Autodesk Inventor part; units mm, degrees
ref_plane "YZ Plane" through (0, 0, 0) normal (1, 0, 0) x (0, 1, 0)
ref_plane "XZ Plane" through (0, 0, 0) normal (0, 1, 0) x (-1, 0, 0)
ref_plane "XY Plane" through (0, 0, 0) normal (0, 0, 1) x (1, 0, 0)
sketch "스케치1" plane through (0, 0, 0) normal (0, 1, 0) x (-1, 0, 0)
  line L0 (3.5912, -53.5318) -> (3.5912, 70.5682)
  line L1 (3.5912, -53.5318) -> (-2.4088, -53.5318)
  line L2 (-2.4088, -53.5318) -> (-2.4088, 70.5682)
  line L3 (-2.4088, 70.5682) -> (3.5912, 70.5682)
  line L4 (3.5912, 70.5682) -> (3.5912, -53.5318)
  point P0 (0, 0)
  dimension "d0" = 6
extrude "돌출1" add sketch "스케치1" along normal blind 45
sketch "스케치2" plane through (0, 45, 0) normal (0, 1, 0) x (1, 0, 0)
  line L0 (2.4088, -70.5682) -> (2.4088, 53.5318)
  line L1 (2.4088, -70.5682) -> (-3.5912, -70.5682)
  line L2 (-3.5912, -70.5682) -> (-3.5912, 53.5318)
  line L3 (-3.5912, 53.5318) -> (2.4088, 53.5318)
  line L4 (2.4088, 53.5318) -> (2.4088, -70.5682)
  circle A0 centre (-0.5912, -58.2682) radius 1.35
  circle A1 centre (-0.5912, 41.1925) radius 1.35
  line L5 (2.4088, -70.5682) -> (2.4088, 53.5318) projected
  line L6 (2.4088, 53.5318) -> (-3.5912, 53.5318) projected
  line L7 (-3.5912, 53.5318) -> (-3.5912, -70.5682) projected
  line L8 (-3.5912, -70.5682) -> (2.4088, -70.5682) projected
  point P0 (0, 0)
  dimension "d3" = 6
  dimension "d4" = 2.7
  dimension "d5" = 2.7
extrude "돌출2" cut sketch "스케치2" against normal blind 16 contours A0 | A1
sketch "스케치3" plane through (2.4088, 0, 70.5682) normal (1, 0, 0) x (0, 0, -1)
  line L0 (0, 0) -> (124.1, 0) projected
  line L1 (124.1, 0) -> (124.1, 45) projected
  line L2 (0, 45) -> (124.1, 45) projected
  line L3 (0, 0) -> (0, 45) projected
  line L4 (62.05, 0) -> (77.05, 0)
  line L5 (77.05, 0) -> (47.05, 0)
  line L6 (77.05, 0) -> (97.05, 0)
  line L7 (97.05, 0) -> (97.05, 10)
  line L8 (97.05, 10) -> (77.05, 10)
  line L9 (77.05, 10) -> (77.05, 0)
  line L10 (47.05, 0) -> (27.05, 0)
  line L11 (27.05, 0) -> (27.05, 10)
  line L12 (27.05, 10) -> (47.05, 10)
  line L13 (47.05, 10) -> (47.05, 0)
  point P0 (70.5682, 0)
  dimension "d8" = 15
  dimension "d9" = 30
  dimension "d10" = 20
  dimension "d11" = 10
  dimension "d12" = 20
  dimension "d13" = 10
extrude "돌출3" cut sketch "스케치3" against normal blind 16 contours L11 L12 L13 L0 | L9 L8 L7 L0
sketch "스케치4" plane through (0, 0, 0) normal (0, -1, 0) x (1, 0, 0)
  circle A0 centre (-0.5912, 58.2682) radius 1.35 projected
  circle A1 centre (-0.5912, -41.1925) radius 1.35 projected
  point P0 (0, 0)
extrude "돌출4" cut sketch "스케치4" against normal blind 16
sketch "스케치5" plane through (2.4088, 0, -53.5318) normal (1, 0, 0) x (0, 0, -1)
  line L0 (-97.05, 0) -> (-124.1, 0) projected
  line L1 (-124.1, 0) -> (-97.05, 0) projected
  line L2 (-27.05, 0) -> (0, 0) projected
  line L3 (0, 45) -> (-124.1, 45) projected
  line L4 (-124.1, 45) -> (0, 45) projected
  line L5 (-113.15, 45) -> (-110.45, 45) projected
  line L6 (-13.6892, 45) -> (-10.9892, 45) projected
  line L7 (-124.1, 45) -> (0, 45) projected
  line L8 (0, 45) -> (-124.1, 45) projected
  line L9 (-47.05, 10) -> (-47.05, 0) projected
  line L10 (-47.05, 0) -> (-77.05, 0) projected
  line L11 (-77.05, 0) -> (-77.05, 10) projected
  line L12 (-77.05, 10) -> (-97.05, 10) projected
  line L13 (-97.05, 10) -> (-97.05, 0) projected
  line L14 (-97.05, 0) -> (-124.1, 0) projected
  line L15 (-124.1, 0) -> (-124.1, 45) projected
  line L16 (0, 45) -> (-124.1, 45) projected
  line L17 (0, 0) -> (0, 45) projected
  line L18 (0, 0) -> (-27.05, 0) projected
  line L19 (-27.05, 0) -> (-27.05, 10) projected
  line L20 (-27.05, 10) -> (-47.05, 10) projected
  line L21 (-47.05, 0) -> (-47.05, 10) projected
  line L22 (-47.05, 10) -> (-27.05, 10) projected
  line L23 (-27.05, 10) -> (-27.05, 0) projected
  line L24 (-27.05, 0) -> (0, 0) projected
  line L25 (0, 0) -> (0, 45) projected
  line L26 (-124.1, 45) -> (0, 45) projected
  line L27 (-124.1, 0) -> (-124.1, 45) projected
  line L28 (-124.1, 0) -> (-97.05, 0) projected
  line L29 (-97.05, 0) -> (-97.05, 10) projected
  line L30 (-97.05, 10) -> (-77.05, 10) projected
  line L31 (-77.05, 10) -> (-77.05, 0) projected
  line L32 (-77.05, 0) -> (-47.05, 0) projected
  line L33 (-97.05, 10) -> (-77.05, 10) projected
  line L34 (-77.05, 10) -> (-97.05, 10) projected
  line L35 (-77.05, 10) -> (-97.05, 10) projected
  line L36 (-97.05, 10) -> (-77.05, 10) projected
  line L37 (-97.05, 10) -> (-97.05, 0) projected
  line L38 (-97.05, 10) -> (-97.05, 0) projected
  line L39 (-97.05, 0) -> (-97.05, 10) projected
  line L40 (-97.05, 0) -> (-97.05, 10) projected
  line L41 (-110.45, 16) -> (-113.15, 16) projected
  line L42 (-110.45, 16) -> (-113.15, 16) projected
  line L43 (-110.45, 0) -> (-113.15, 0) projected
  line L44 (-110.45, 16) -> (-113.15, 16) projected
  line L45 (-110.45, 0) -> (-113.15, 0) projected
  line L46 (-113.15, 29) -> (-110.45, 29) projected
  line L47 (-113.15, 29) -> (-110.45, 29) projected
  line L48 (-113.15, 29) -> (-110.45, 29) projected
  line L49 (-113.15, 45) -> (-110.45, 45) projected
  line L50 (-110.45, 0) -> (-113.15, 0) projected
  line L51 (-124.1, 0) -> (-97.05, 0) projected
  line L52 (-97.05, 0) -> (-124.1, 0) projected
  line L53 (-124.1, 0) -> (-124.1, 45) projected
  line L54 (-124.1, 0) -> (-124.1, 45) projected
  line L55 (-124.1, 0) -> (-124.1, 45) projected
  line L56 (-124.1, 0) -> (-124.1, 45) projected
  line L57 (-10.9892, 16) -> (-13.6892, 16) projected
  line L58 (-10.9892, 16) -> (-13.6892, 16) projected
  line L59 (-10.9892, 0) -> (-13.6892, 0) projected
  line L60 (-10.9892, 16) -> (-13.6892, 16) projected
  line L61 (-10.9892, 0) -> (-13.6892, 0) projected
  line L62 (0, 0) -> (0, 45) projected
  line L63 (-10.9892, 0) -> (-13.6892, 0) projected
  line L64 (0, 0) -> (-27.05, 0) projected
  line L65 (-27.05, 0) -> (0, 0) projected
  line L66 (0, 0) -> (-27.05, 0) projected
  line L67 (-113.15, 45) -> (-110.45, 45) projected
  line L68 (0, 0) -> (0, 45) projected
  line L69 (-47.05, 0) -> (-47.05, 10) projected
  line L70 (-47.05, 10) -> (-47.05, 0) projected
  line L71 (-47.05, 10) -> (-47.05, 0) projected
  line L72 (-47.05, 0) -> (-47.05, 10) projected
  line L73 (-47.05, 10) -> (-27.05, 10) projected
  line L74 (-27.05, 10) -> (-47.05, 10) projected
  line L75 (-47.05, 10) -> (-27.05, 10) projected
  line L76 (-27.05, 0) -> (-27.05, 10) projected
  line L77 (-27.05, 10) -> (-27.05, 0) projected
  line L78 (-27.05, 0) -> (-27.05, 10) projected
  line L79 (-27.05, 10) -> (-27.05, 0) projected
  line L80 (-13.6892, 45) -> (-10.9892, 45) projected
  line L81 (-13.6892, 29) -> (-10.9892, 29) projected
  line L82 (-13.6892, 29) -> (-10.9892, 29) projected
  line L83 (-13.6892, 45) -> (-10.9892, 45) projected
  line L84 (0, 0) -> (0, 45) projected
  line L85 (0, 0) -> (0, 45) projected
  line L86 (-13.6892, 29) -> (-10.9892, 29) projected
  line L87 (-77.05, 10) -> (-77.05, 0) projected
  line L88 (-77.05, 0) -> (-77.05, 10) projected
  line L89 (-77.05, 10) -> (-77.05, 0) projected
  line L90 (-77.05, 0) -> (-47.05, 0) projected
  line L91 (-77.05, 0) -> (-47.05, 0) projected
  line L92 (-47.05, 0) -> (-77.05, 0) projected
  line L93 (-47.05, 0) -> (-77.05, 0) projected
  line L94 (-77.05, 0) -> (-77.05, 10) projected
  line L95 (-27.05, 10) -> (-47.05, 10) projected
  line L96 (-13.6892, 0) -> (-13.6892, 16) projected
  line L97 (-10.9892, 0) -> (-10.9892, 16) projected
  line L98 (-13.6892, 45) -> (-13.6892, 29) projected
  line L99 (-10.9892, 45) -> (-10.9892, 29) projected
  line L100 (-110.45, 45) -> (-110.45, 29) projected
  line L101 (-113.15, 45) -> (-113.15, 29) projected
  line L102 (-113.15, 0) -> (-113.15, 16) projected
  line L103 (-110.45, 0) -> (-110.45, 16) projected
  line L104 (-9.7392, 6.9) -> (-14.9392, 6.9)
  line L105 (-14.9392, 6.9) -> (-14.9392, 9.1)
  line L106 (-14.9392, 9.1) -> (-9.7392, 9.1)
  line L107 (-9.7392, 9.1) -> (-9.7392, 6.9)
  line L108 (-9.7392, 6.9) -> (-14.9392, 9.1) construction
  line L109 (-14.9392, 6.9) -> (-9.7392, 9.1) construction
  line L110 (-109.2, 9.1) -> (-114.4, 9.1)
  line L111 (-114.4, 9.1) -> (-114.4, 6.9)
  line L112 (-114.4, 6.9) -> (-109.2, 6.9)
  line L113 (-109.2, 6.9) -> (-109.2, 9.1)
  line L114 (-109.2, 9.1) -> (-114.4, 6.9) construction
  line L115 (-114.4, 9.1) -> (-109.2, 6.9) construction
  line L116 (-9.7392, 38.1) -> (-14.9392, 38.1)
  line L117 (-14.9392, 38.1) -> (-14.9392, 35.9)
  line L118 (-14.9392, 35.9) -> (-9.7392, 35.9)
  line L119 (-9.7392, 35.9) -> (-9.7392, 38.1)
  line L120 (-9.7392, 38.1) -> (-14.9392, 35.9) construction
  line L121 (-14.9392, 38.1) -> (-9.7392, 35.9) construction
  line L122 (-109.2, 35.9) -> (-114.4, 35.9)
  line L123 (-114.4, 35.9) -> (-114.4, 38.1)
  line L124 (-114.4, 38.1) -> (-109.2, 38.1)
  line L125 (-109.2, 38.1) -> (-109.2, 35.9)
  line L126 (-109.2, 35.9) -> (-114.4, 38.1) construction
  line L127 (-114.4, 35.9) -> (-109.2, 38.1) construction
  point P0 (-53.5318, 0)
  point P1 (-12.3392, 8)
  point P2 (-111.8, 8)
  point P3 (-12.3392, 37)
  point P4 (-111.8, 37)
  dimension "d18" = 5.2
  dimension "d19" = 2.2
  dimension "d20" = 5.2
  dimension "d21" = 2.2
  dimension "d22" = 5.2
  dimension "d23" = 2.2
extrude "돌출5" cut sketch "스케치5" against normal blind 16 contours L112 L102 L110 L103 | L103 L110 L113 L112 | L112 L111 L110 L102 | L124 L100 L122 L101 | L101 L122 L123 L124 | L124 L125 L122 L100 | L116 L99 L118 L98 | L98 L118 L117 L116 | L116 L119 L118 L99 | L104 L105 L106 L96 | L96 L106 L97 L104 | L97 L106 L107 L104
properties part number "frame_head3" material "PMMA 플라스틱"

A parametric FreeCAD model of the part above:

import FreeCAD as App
import Part
import Sketcher

doc = App.newDocument("Part")
params = doc.addObject("Spreadsheet::Sheet", "Params")
for row, (alias, value) in enumerate([
    ("sketch1_width", "6 mm"),
    ("sketch1_height", "124.1 mm"),
    ("pad1_length", "45 mm"),
    ("sketch2_diameter", "2.7 mm"),
    ("pocket1_length", "16 mm"),
    ("sketch3_width", "10 mm"),
    ("sketch3_height", "20 mm"),
    ("pocket2_length", "16 mm"),
    ("sketch4_diameter", "2.7 mm"),
    ("pocket3_length", "16 mm"),
    ("sketch5_width", "2.2 mm"),
    ("sketch5_height", "5.2 mm"),
    ("pocket4_length", "16 mm"),
], start=1):
    params.set(f"A{row}", alias)
    params.set(f"B{row}", "=" + value)
    params.setAlias(f"B{row}", alias)

body = doc.addObject("PartDesign::Body", "Body")

sketch1 = body.newObject("Sketcher::SketchObject", "Sketch")
sketch1.AttachmentSupport = (doc.getObject("XZ_Plane"), [""])
sketch1.MapMode = "FlatFace"
sketch1.addGeometry([
    Part.LineSegment(App.Vector(2.4088, -53.5318, 0), App.Vector(-3.5912, -53.5318, 0)),
    Part.LineSegment(App.Vector(-3.5912, -53.5318, 0), App.Vector(-3.5912, 70.5682, 0)),
    Part.LineSegment(App.Vector(-3.5912, 70.5682, 0), App.Vector(2.4088, 70.5682, 0)),
    Part.LineSegment(App.Vector(2.4088, 70.5682, 0), App.Vector(2.4088, -53.5318, 0)),
], False)
sketch1.addConstraint([
    Sketcher.Constraint("Coincident", 0, 2, 1, 1),
    Sketcher.Constraint("Coincident", 1, 2, 2, 1),
    Sketcher.Constraint("Coincident", 2, 2, 3, 1),
    Sketcher.Constraint("Coincident", 3, 2, 0, 1),
    Sketcher.Constraint("Horizontal", 0),
    Sketcher.Constraint("Vertical", 1),
    Sketcher.Constraint("Horizontal", 2),
    Sketcher.Constraint("Vertical", 3),
    Sketcher.Constraint("DistanceX", 0, 2, 0, 1, 6.0),
    Sketcher.Constraint("DistanceY", 1, 1, 1, 2, 124.1),
    Sketcher.Constraint("DistanceX", 0, 2, -1, 1, 3.5912),
    Sketcher.Constraint("DistanceY", 0, 2, -1, 1, 53.5318),
])
sketch1.setExpression("Constraints[8]", "Params.sketch1_width")
sketch1.setExpression("Constraints[9]", "Params.sketch1_height")
pad1 = body.newObject("PartDesign::Pad", "Pad")
pad1.Profile = sketch1
pad1.setExpression("Length", "Params.pad1_length")
pad1.Reversed = True

sketch2 = body.newObject("Sketcher::SketchObject", "Sketch001")
sketch2.AttachmentSupport = (doc.getObject("XZ_Plane"), [""])
sketch2.MapMode = "FlatFace"
sketch2.AttachmentOffset = App.Placement(App.Vector(0, 0, -45), App.Rotation())
sketch2.addGeometry([
    Part.Circle(App.Vector(-0.5912, 58.2682, 0), App.Vector(0, 0, 1), 1.35),
    Part.Circle(App.Vector(-0.5912, -41.1925, 0), App.Vector(0, 0, 1), 1.35),
], False)
sketch2.addConstraint([
    Sketcher.Constraint("Equal", 0, 1),
    Sketcher.Constraint("Vertical", 0, 3, 1, 3),
    Sketcher.Constraint("Diameter", 0, 2.7),
    Sketcher.Constraint("DistanceX", 0, 3, -1, 1, 0.5912),
    Sketcher.Constraint("DistanceY", -1, 1, 0, 3, 58.2682),
    Sketcher.Constraint("DistanceY", 1, 3, -1, 1, 41.1925),
])
sketch2.setExpression("Constraints[2]", "Params.sketch2_diameter")
pocket1 = body.newObject("PartDesign::Pocket", "Pocket")
pocket1.Profile = sketch2
pocket1.setExpression("Length", "Params.pocket1_length")
pocket1.Reversed = True

sketch3 = body.newObject("Sketcher::SketchObject", "Sketch002")
sketch3.AttachmentSupport = (doc.getObject("YZ_Plane"), [""])
sketch3.MapMode = "FlatFace"
sketch3.AttachmentOffset = App.Placement(App.Vector(0, 0, 2.4088), App.Rotation())
sketch3.addGeometry([
    Part.LineSegment(App.Vector(10, 43.5182, 0), App.Vector(0, 43.5182, 0)),
    Part.LineSegment(App.Vector(0, 43.5182, 0), App.Vector(0, 23.5182, 0)),
    Part.LineSegment(App.Vector(0, 23.5182, 0), App.Vector(10, 23.5182, 0)),
    Part.LineSegment(App.Vector(10, 23.5182, 0), App.Vector(10, 43.5182, 0)),
    Part.LineSegment(App.Vector(10, -6.4818, 0), App.Vector(0, -6.4818, 0)),
    Part.LineSegment(App.Vector(0, -6.4818, 0), App.Vector(0, -26.4818, 0)),
    Part.LineSegment(App.Vector(0, -26.4818, 0), App.Vector(10, -26.4818, 0)),
    Part.LineSegment(App.Vector(10, -26.4818, 0), App.Vector(10, -6.4818, 0)),
], False)
sketch3.addConstraint([
    Sketcher.Constraint("Coincident", 0, 2, 1, 1),
    Sketcher.Constraint("Coincident", 1, 2, 2, 1),
    Sketcher.Constraint("Coincident", 2, 2, 3, 1),
    Sketcher.Constraint("Coincident", 3, 2, 0, 1),
    Sketcher.Constraint("Coincident", 4, 2, 5, 1),
    Sketcher.Constraint("Coincident", 5, 2, 6, 1),
    Sketcher.Constraint("Coincident", 6, 2, 7, 1),
    Sketcher.Constraint("Coincident", 7, 2, 4, 1),
    Sketcher.Constraint("Horizontal", 0),
    Sketcher.Constraint("Vertical", 1),
    Sketcher.Constraint("Horizontal", 2),
    Sketcher.Constraint("Vertical", 3),
    Sketcher.Constraint("Horizontal", 4),
    Sketcher.Constraint("Vertical", 5),
    Sketcher.Constraint("Horizontal", 6),
    Sketcher.Constraint("Vertical", 7),
    Sketcher.Constraint("PointOnObject", 0, 2, -2),
    Sketcher.Constraint("PointOnObject", 4, 2, -2),
    Sketcher.Constraint("Vertical", 3, 2, 6, 2),
    Sketcher.Constraint("Equal", 3, 5),
    Sketcher.Constraint("DistanceX", 0, 2, 0, 1, 10.0),
    Sketcher.Constraint("DistanceY", 1, 2, 1, 1, 20.0),
    Sketcher.Constraint("DistanceY", 4, 2, 1, 2, 30.0),
    Sketcher.Constraint("DistanceY", -1, 1, 0, 2, 43.5182),
])
sketch3.setExpression("Constraints[20]", "Params.sketch3_width")
sketch3.setExpression("Constraints[21]", "Params.sketch3_height")
pocket2 = body.newObject("PartDesign::Pocket", "Pocket001")
pocket2.Profile = sketch3
pocket2.setExpression("Length", "Params.pocket2_length")

sketch4 = body.newObject("Sketcher::SketchObject", "Sketch003")
sketch4.AttachmentSupport = (doc.getObject("XZ_Plane"), [""])
sketch4.MapMode = "FlatFace"
sketch4.addGeometry([
    Part.Circle(App.Vector(-0.5912, 58.2682, 0), App.Vector(0, 0, 1), 1.35),
    Part.Circle(App.Vector(-0.5912, -41.1925, 0), App.Vector(0, 0, 1), 1.35),
], False)
sketch4.addConstraint([
    Sketcher.Constraint("Equal", 0, 1),
    Sketcher.Constraint("Vertical", 0, 3, 1, 3),
    Sketcher.Constraint("Diameter", 0, 2.7),
    Sketcher.Constraint("DistanceX", 0, 3, -1, 1, 0.5912),
    Sketcher.Constraint("DistanceY", -1, 1, 0, 3, 58.2682),
    Sketcher.Constraint("DistanceY", 1, 3, -1, 1, 41.1925),
])
sketch4.setExpression("Constraints[2]", "Params.sketch4_diameter")
pocket3 = body.newObject("PartDesign::Pocket", "Pocket002")
pocket3.Profile = sketch4
pocket3.setExpression("Length", "Params.pocket3_length")

sketch5 = body.newObject("Sketcher::SketchObject", "Sketch004")
sketch5.AttachmentSupport = (doc.getObject("YZ_Plane"), [""])
sketch5.MapMode = "FlatFace"
sketch5.AttachmentOffset = App.Placement(App.Vector(0, 0, 2.4088), App.Rotation())
sketch5.addGeometry([
    Part.LineSegment(App.Vector(6.9, 55.6682, 0), App.Vector(9.1, 55.6682, 0)),
    Part.LineSegment(App.Vector(9.1, 55.6682, 0), App.Vector(9.1, 60.8682, 0)),
    Part.LineSegment(App.Vector(9.1, 60.8682, 0), App.Vector(6.9, 60.8682, 0)),
    Part.LineSegment(App.Vector(6.9, 60.8682, 0), App.Vector(6.9, 55.6682, 0)),
    Part.LineSegment(App.Vector(38.1, 60.8682, 0), App.Vector(35.9, 60.8682, 0)),
    Part.LineSegment(App.Vector(35.9, 60.8682, 0), App.Vector(35.9, 55.6682, 0)),
    Part.LineSegment(App.Vector(35.9, 55.6682, 0), App.Vector(38.1, 55.6682, 0)),
    Part.LineSegment(App.Vector(38.1, 55.6682, 0), App.Vector(38.1, 60.8682, 0)),
    Part.LineSegment(App.Vector(38.1, -38.5926, 0), App.Vector(35.9, -38.5926, 0)),
    Part.LineSegment(App.Vector(35.9, -38.5926, 0), App.Vector(35.9, -43.7926, 0)),
    Part.LineSegment(App.Vector(35.9, -43.7926, 0), App.Vector(38.1, -43.7926, 0)),
    Part.LineSegment(App.Vector(38.1, -43.7926, 0), App.Vector(38.1, -38.5926, 0)),
    Part.LineSegment(App.Vector(6.9, -38.5926, 0), App.Vector(6.9, -43.7926, 0)),
    Part.LineSegment(App.Vector(6.9, -43.7926, 0), App.Vector(9.1, -43.7926, 0)),
    Part.LineSegment(App.Vector(9.1, -43.7926, 0), App.Vector(9.1, -38.5926, 0)),
    Part.LineSegment(App.Vector(9.1, -38.5926, 0), App.Vector(6.9, -38.5926, 0)),
], False)
sketch5.addConstraint([
    Sketcher.Constraint("Coincident", 0, 2, 1, 1),
    Sketcher.Constraint("Coincident", 1, 2, 2, 1),
    Sketcher.Constraint("Coincident", 2, 2, 3, 1),
    Sketcher.Constraint("Coincident", 3, 2, 0, 1),
    Sketcher.Constraint("Coincident", 4, 2, 5, 1),
    Sketcher.Constraint("Coincident", 5, 2, 6, 1),
    Sketcher.Constraint("Coincident", 6, 2, 7, 1),
    Sketcher.Constraint("Coincident", 7, 2, 4, 1),
    Sketcher.Constraint("Coincident", 8, 2, 9, 1),
    Sketcher.Constraint("Coincident", 9, 2, 10, 1),
    Sketcher.Constraint("Coincident", 10, 2, 11, 1),
    Sketcher.Constraint("Coincident", 11, 2, 8, 1),
    Sketcher.Constraint("Coincident", 12, 2, 13, 1),
    Sketcher.Constraint("Coincident", 13, 2, 14, 1),
    Sketcher.Constraint("Coincident", 14, 2, 15, 1),
    Sketcher.Constraint("Coincident", 15, 2, 12, 1),
    Sketcher.Constraint("Horizontal", 0),
    Sketcher.Constraint("Vertical", 1),
    Sketcher.Constraint("Horizontal", 2),
    Sketcher.Constraint("Vertical", 3),
    Sketcher.Constraint("Horizontal", 4),
    Sketcher.Constraint("Vertical", 5),
    Sketcher.Constraint("Horizontal", 6),
    Sketcher.Constraint("Vertical", 7),
    Sketcher.Constraint("Horizontal", 8),
    Sketcher.Constraint("Vertical", 9),
    Sketcher.Constraint("Horizontal", 10),
    Sketcher.Constraint("Vertical", 11),
    Sketcher.Constraint("Vertical", 12),
    Sketcher.Constraint("Horizontal", 13),
    Sketcher.Constraint("Vertical", 14),
    Sketcher.Constraint("Horizontal", 15),
    Sketcher.Constraint("Horizontal", 2, 2, 4, 2),
    Sketcher.Constraint("Horizontal", 3, 2, 5, 2),
    Sketcher.Constraint("Horizontal", 10, 2, 12, 2),
    Sketcher.Constraint("Horizontal", 11, 2, 14, 2),
    Sketcher.Constraint("Vertical", 5, 2, 8, 2),
    Sketcher.Constraint("Vertical", 7, 2, 10, 2),
    Sketcher.Constraint("Vertical", 3, 2, 12, 2),
    Sketcher.Constraint("Vertical", 1, 2, 13, 2),
    Sketcher.Constraint("Equal", 2, 4),
    Sketcher.Constraint("Equal", 7, 9),
    Sketcher.Constraint("DistanceX", 0, 1, 0, 2, 2.2),
    Sketcher.Constraint("DistanceY", 1, 1, 1, 2, 5.2),
    Sketcher.Constraint("DistanceX", 2, 2, 4, 2, 29.0),
    Sketcher.Constraint("DistanceX", -1, 1, 0, 2, 9.1),
    Sketcher.Constraint("DistanceY", -1, 1, 0, 2, 55.6682),
    Sketcher.Constraint("DistanceY", 8, 2, -1, 1, 38.5926),
])
sketch5.setExpression("Constraints[42]", "Params.sketch5_width")
sketch5.setExpression("Constraints[43]", "Params.sketch5_height")
pocket4 = body.newObject("PartDesign::Pocket", "Pocket003")
pocket4.Profile = sketch5
pocket4.setExpression("Length", "Params.pocket4_length")

doc.recompute()
